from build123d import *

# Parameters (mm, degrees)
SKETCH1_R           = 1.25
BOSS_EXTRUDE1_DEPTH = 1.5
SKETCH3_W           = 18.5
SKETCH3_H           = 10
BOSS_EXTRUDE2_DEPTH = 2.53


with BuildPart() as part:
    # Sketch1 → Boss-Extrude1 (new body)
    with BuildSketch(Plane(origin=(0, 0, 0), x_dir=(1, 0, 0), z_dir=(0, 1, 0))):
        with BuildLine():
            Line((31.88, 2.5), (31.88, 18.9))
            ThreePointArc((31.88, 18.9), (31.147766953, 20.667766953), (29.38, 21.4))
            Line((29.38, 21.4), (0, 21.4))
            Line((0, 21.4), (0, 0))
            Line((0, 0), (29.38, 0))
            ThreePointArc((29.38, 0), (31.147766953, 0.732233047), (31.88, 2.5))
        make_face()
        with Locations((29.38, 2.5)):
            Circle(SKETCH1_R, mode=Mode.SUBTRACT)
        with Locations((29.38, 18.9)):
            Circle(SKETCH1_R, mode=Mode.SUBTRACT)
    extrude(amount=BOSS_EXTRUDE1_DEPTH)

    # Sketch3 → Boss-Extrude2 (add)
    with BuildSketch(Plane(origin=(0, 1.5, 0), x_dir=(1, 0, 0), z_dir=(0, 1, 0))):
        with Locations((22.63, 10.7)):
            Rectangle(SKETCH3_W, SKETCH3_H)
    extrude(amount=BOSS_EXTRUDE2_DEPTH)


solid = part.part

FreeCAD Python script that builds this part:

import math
import FreeCAD as App
import Part
import Sketcher
from FreeCAD import Vector


def add_polygon(sketch, points):
    """Adds a closed chain of lines whose ends are joined by coincident constraints."""
    first, n = sketch.GeometryCount, len(points)
    for a, b in zip(points, points[1:] + points[:1]):
        sketch.addGeometry(Part.LineSegment(App.Vector(*a, 0), App.Vector(*b, 0)), False)
    for i in range(n):
        sketch.addConstraint(Sketcher.Constraint("Coincident", first + i, 2, first + (i + 1) % n, 1))

doc = App.newDocument("Part")
params = doc.addObject("Spreadsheet::Sheet", "Params")
for row, (alias, value) in enumerate([
    ("sketch1_diameter", "2.5 mm"),
    ("sketch1_radius", "2.5 mm"),
    ("sketch1_height", "16.4 mm"),
    ("sketch1_width", "29.38 mm"),
    ("pad1_length", "1.5 mm"),
    ("sketch2_height", "10 mm"),
    ("sketch2_width", "18.5 mm"),
    ("pad2_length", "2.53 mm"),
], start=1):
    params.set(f"A{row}", alias)
    params.set(f"B{row}", "=" + value)
    params.setAlias(f"B{row}", alias)

body = doc.addObject("PartDesign::Body", "Body")

sketch1 = body.newObject("Sketcher::SketchObject", "Sketch")
sketch1.AttachmentSupport = (doc.getObject("XZ_Plane"), [""])
sketch1.MapMode = "FlatFace"
sketch1.addGeometry([
    Part.LineSegment(Vector(31.9, -2.5, 0), Vector(31.9, -18.9, 0)),
    Part.ArcOfCircle(Part.Circle(Vector(29.4, -18.9, 0), Vector(0, 0, 1), 2.5), math.radians(-90), math.radians(0)),
    Part.LineSegment(Vector(29.4, -21.4, 0), Vector(0, -21.4, 0)),
    Part.LineSegment(Vector(0, -21.4, 0), Vector(0, 0, 0)),
    Part.LineSegment(Vector(0, 0, 0), Vector(29.4, 0, 0)),
    Part.ArcOfCircle(Part.Circle(Vector(29.4, -2.5, 0), Vector(0, 0, 1), 2.5), math.radians(0), math.radians(90)),
    Part.Circle(Vector(29.4, -2.5, 0), Vector(0, 0, 1), 1.2),
    Part.Circle(Vector(29.4, -18.9, 0), Vector(0, 0, 1), 1.2),
], False)
sketch1.addConstraint([
    Sketcher.Constraint("Tangent", 0, 2, 1, 2),
    Sketcher.Constraint("Tangent", 1, 1, 2, 1),
    Sketcher.Constraint("Coincident", 2, 2, 3, 1),
    Sketcher.Constraint("Coincident", 3, 2, 4, 1),
    Sketcher.Constraint("Tangent", 4, 2, 5, 2),
    Sketcher.Constraint("Tangent", 5, 1, 0, 1),
    Sketcher.Constraint("Vertical", 0),
    Sketcher.Constraint("Horizontal", 2),
    Sketcher.Constraint("Vertical", 3),
    Sketcher.Constraint("Horizontal", 4),
    Sketcher.Constraint("Coincident", 3, 2, -1, 1),
    Sketcher.Constraint("Coincident", 6, 3, 5, 3),
    Sketcher.Constraint("Coincident", 7, 3, 1, 3),
    Sketcher.Constraint("Equal", 1, 5),
    Sketcher.Constraint("Equal", 6, 7),
    Sketcher.Constraint("Diameter", 6, 2.5),
    Sketcher.Constraint("Radius", 1, 2.5),
    Sketcher.Constraint("DistanceY", 0, 2, 0, 1, 16.4),
    Sketcher.Constraint("DistanceX", 2, 2, 2, 1, 29.38),
])
sketch1.setExpression("Constraints[15]", "Params.sketch1_diameter")
sketch1.setExpression("Constraints[16]", "Params.sketch1_radius")
sketch1.setExpression("Constraints[17]", "Params.sketch1_height")
sketch1.setExpression("Constraints[18]", "Params.sketch1_width")
pad1 = body.newObject("PartDesign::Pad", "Pad")
pad1.Profile = sketch1
pad1.setExpression("Length", "Params.pad1_length")
pad1.Reversed = True

sketch2 = body.newObject("Sketcher::SketchObject", "Sketch001")
sketch2.AttachmentSupport = (doc.getObject("XZ_Plane"), [""])
sketch2.MapMode = "FlatFace"
sketch2.AttachmentOffset = App.Placement(Vector(0, 0, -1.5), App.Rotation())
add_polygon(sketch2, [(13, -16), (13, -6), (32, -6), (32, -16)])
sketch2.addConstraint([
    Sketcher.Constraint("Vertical", 0),
    Sketcher.Constraint("Horizontal", 1),
    Sketcher.Constraint("Vertical", 2),
    Sketcher.Constraint("Horizontal", 3),
    Sketcher.Constraint("DistanceY", 0, 1, 0, 2, 10.0),
    Sketcher.Constraint("DistanceX", 1, 1, 1, 2, 18.5),
    Sketcher.Constraint("DistanceY", 0, 2, -1, 1, 5.7),
    Sketcher.Constraint("DistanceX", -1, 1, 0, 2, 13.38),
])
sketch2.setExpression("Constraints[8]", "Params.sketch2_height")
sketch2.setExpression("Constraints[9]", "Params.sketch2_width")
pad2 = body.newObject("PartDesign::Pad", "Pad001")
pad2.Profile = sketch2
pad2.setExpression("Length", "Params.pad2_length")
pad2.Reversed = True

doc.recompute()
